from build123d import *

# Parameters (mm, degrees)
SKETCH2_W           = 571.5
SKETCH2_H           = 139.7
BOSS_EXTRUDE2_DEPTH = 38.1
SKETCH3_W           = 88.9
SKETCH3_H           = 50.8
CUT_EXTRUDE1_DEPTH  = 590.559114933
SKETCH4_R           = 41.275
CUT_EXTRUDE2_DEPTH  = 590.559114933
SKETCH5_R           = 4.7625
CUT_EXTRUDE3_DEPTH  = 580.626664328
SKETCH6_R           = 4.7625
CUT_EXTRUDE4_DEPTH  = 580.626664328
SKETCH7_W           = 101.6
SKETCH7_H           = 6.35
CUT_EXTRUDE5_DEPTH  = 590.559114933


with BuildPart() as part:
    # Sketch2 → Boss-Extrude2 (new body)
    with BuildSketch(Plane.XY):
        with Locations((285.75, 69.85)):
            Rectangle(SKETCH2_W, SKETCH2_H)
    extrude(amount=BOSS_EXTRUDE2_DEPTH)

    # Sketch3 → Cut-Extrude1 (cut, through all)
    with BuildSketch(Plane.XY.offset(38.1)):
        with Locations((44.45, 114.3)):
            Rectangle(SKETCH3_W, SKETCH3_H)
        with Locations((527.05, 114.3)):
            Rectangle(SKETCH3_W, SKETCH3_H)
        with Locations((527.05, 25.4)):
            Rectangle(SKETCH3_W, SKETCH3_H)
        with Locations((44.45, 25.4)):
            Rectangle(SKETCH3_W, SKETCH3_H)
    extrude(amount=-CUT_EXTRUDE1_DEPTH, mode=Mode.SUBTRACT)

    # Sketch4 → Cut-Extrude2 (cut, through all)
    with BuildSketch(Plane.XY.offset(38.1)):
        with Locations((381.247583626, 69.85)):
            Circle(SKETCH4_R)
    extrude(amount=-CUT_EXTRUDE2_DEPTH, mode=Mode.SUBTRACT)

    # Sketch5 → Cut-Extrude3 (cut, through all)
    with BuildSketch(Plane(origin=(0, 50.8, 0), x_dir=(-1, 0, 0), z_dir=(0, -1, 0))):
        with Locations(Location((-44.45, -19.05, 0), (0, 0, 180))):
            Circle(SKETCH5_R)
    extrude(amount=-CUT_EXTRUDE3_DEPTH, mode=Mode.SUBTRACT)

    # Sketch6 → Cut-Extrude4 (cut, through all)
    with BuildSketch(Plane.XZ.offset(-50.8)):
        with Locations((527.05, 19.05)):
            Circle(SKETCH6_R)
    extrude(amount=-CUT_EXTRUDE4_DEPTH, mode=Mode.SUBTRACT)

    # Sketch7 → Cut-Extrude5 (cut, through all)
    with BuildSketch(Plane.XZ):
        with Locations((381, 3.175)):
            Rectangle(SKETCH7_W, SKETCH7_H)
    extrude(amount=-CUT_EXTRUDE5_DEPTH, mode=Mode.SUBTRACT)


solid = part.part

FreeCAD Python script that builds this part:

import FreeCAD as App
import Part
import Sketcher

V = App.Vector
Q = App.Units.Quantity


def add_polygon(sketch, points):
    """Adds a closed chain of lines whose ends are joined by coincident constraints."""
    first, n = sketch.GeometryCount, len(points)
    for a, b in zip(points, points[1:] + points[:1]):
        sketch.addGeometry(Part.LineSegment(App.Vector(*a, 0), App.Vector(*b, 0)), False)
    for i in range(n):
        sketch.addConstraint(Sketcher.Constraint("Coincident", first + i, 2, first + (i + 1) % n, 1))

doc = App.newDocument("Part")
body = doc.addObject("PartDesign::Body", "Body")

# Sketch on XY plane
sketch1 = doc.addObject("Sketcher::SketchObject", "Sketch")
body.addObject(sketch1)
sketch1.AttachmentSupport = (doc.XY_Plane, [""])
sketch1.MapMode = "FlatFace"
add_polygon(sketch1, [(0, 140), (0, 0), (572, 0), (572, 140)])  # lines 0-3
sketch1.addConstraint(Sketcher.Constraint("Vertical", 0))
sketch1.addConstraint(Sketcher.Constraint("Horizontal", 1))
sketch1.addConstraint(Sketcher.Constraint("Vertical", 2))
sketch1.addConstraint(Sketcher.Constraint("Horizontal", 3))
sketch1.addConstraint(Sketcher.Constraint("Coincident", 0, 2, -1, 1))
sketch1.addConstraint(Sketcher.Constraint("DistanceX", 1, 1, 1, 2, Q("22.5 in")))
sketch1.addConstraint(Sketcher.Constraint("DistanceY", 0, 2, 0, 1, Q("5.5 in")))
pad1 = doc.addObject("PartDesign::Pad", "Pad")
body.addObject(pad1)
pad1.Profile = sketch1
pad1.Length = Q("1.5 in")

# Sketch on XY plane
sketch2 = doc.addObject("Sketcher::SketchObject", "Sketch001")
body.addObject(sketch2)
sketch2.AttachmentSupport = (doc.XY_Plane, [""])
sketch2.MapMode = "FlatFace"
sketch2.AttachmentOffset = App.Placement(V(0, 0, 1.5 * 25.4), App.Rotation())
add_polygon(sketch2, [(0, 140), (0, 89), (89, 89), (89, 140)])  # lines 0-3
add_polygon(sketch2, [(483, 140), (483, 89), (572, 89), (572, 140)])  # lines 4-7
add_polygon(sketch2, [(483, 51), (483, 0), (572, 0), (572, 51)])  # lines 8-11
add_polygon(sketch2, [(0, 51), (0, 0), (89, 0), (89, 51)])  # lines 12-15
sketch2.addConstraint(Sketcher.Constraint("Vertical", 0))
sketch2.addConstraint(Sketcher.Constraint("Horizontal", 1))
sketch2.addConstraint(Sketcher.Constraint("Vertical", 2))
sketch2.addConstraint(Sketcher.Constraint("Horizontal", 3))
sketch2.addConstraint(Sketcher.Constraint("Vertical", 4))
sketch2.addConstraint(Sketcher.Constraint("Horizontal", 5))
sketch2.addConstraint(Sketcher.Constraint("Vertical", 6))
sketch2.addConstraint(Sketcher.Constraint("Horizontal", 7))
sketch2.addConstraint(Sketcher.Constraint("Vertical", 8))
sketch2.addConstraint(Sketcher.Constraint("Horizontal", 9))
sketch2.addConstraint(Sketcher.Constraint("Vertical", 10))
sketch2.addConstraint(Sketcher.Constraint("Horizontal", 11))
sketch2.addConstraint(Sketcher.Constraint("Vertical", 12))
sketch2.addConstraint(Sketcher.Constraint("Horizontal", 13))
sketch2.addConstraint(Sketcher.Constraint("Vertical", 14))
sketch2.addConstraint(Sketcher.Constraint("Horizontal", 15))
sketch2.addConstraint(Sketcher.Constraint("Coincident", 12, 2, -1, 1))
sketch2.addConstraint(Sketcher.Constraint("PointOnObject", 0, 2, -2))
sketch2.addConstraint(Sketcher.Constraint("PointOnObject", 8, 2, -1))
sketch2.addConstraint(Sketcher.Constraint("Horizontal", 1, 2, 4, 2))
sketch2.addConstraint(Sketcher.Constraint("Horizontal", 3, 2, 6, 2))
sketch2.addConstraint(Sketcher.Constraint("Horizontal", 11, 2, 14, 2))
sketch2.addConstraint(Sketcher.Constraint("Vertical", 7, 2, 8, 2))
sketch2.addConstraint(Sketcher.Constraint("Vertical", 6, 2, 9, 2))
sketch2.addConstraint(Sketcher.Constraint("Vertical", 2, 2, 13, 2))
sketch2.addConstraint(Sketcher.Constraint("Equal", 3, 5))
sketch2.addConstraint(Sketcher.Constraint("Equal", 6, 8))
sketch2.addConstraint(Sketcher.Constraint("DistanceY", 0, 2, 0, 1, Q("2 in")))
sketch2.addConstraint(Sketcher.Constraint("DistanceX", 1, 1, 1, 2, Q("3.5 in")))
sketch2.addConstraint(Sketcher.Constraint("DistanceX", -1, 1, 4, 2, Q("19 in")))
sketch2.addConstraint(Sketcher.Constraint("DistanceY", -1, 1, 0, 2, Q("3.5 in")))
pocket1 = doc.addObject("PartDesign::Pocket", "Pocket")
body.addObject(pocket1)
pocket1.Profile = sketch2
pocket1.Type = "ThroughAll"

# Sketch on XY plane
sketch3 = doc.addObject("Sketcher::SketchObject", "Sketch002")
body.addObject(sketch3)
sketch3.AttachmentSupport = (doc.XY_Plane, [""])
sketch3.MapMode = "FlatFace"
sketch3.AttachmentOffset = App.Placement(V(0, 0, 1.5 * 25.4), App.Rotation())
sketch3.addGeometry(Part.Circle(V(381, 70, 0), V(0, 0, 1), 41), False)
sketch3.addConstraint(Sketcher.Constraint("Diameter", 0, Q("3.25 in")))
sketch3.addConstraint(Sketcher.Constraint("DistanceY", -1, 1, 0, 3, Q("2.75 in")))
sketch3.addConstraint(Sketcher.Constraint("DistanceX", -1, 1, 0, 3, 381.247584))
pocket2 = doc.addObject("PartDesign::Pocket", "Pocket001")
body.addObject(pocket2)
pocket2.Profile = sketch3
pocket2.Type = "ThroughAll"

# Sketch on XZ plane
sketch4 = doc.addObject("Sketcher::SketchObject", "Sketch003")
body.addObject(sketch4)
sketch4.AttachmentSupport = (doc.XZ_Plane, [""])
sketch4.MapMode = "FlatFace"
sketch4.AttachmentOffset = App.Placement(V(0, 0, -2 * 25.4), App.Rotation())
sketch4.addGeometry(Part.Circle(V(44.5, 19.1, 0), V(0, 0, 1), 4.8), False)
sketch4.addConstraint(Sketcher.Constraint("Diameter", 0, Q("0.375 in")))
sketch4.addConstraint(Sketcher.Constraint("DistanceX", -1, 1, 0, 3, Q("1.75 in")))
sketch4.addConstraint(Sketcher.Constraint("DistanceY", -1, 1, 0, 3, Q("0.75 in")))
pocket3 = doc.addObject("PartDesign::Pocket", "Pocket002")
body.addObject(pocket3)
pocket3.Profile = sketch4
pocket3.Type = "ThroughAll"

# Sketch on XZ plane
sketch5 = doc.addObject("Sketcher::SketchObject", "Sketch004")
body.addObject(sketch5)
sketch5.AttachmentSupport = (doc.XZ_Plane, [""])
sketch5.MapMode = "FlatFace"
sketch5.AttachmentOffset = App.Placement(V(0, 0, -2 * 25.4), App.Rotation())
sketch5.addGeometry(Part.Circle(V(527, 19.1, 0), V(0, 0, 1), 4.8), False)
sketch5.addConstraint(Sketcher.Constraint("Diameter", 0, Q("0.375 in")))
sketch5.addConstraint(Sketcher.Constraint("DistanceX", -1, 1, 0, 3, Q("20.75 in")))
sketch5.addConstraint(Sketcher.Constraint("DistanceY", -1, 1, 0, 3, Q("0.75 in")))
pocket4 = doc.addObject("PartDesign::Pocket", "Pocket003")
body.addObject(pocket4)
pocket4.Profile = sketch5
pocket4.Type = "ThroughAll"

# Sketch on XZ plane
sketch6 = doc.addObject("Sketcher::SketchObject", "Sketch005")
body.addObject(sketch6)
sketch6.AttachmentSupport = (doc.XZ_Plane, [""])
sketch6.MapMode = "FlatFace"
add_polygon(sketch6, [(330, 6), (330, 0), (432, 0), (432, 6)])  # lines 0-3
sketch6.addConstraint(Sketcher.Constraint("Vertical", 0))
sketch6.addConstraint(Sketcher.Constraint("Horizontal", 1))
sketch6.addConstraint(Sketcher.Constraint("Vertical", 2))
sketch6.addConstraint(Sketcher.Constraint("Horizontal", 3))
sketch6.addConstraint(Sketcher.Constraint("PointOnObject", 0, 2, -1))
sketch6.addConstraint(Sketcher.Constraint("DistanceX", 1, 1, 1, 2, Q("4 in")))
sketch6.addConstraint(Sketcher.Constraint("DistanceX", -1, 1, 0, 2, Q("13 in")))
sketch6.addConstraint(Sketcher.Constraint("DistanceY", 0, 2, 0, 1, Q("0.25 in")))
pocket5 = doc.addObject("PartDesign::Pocket", "Pocket004")
body.addObject(pocket5)
pocket5.Profile = sketch6
pocket5.Type = "ThroughAll"

doc.recompute()
